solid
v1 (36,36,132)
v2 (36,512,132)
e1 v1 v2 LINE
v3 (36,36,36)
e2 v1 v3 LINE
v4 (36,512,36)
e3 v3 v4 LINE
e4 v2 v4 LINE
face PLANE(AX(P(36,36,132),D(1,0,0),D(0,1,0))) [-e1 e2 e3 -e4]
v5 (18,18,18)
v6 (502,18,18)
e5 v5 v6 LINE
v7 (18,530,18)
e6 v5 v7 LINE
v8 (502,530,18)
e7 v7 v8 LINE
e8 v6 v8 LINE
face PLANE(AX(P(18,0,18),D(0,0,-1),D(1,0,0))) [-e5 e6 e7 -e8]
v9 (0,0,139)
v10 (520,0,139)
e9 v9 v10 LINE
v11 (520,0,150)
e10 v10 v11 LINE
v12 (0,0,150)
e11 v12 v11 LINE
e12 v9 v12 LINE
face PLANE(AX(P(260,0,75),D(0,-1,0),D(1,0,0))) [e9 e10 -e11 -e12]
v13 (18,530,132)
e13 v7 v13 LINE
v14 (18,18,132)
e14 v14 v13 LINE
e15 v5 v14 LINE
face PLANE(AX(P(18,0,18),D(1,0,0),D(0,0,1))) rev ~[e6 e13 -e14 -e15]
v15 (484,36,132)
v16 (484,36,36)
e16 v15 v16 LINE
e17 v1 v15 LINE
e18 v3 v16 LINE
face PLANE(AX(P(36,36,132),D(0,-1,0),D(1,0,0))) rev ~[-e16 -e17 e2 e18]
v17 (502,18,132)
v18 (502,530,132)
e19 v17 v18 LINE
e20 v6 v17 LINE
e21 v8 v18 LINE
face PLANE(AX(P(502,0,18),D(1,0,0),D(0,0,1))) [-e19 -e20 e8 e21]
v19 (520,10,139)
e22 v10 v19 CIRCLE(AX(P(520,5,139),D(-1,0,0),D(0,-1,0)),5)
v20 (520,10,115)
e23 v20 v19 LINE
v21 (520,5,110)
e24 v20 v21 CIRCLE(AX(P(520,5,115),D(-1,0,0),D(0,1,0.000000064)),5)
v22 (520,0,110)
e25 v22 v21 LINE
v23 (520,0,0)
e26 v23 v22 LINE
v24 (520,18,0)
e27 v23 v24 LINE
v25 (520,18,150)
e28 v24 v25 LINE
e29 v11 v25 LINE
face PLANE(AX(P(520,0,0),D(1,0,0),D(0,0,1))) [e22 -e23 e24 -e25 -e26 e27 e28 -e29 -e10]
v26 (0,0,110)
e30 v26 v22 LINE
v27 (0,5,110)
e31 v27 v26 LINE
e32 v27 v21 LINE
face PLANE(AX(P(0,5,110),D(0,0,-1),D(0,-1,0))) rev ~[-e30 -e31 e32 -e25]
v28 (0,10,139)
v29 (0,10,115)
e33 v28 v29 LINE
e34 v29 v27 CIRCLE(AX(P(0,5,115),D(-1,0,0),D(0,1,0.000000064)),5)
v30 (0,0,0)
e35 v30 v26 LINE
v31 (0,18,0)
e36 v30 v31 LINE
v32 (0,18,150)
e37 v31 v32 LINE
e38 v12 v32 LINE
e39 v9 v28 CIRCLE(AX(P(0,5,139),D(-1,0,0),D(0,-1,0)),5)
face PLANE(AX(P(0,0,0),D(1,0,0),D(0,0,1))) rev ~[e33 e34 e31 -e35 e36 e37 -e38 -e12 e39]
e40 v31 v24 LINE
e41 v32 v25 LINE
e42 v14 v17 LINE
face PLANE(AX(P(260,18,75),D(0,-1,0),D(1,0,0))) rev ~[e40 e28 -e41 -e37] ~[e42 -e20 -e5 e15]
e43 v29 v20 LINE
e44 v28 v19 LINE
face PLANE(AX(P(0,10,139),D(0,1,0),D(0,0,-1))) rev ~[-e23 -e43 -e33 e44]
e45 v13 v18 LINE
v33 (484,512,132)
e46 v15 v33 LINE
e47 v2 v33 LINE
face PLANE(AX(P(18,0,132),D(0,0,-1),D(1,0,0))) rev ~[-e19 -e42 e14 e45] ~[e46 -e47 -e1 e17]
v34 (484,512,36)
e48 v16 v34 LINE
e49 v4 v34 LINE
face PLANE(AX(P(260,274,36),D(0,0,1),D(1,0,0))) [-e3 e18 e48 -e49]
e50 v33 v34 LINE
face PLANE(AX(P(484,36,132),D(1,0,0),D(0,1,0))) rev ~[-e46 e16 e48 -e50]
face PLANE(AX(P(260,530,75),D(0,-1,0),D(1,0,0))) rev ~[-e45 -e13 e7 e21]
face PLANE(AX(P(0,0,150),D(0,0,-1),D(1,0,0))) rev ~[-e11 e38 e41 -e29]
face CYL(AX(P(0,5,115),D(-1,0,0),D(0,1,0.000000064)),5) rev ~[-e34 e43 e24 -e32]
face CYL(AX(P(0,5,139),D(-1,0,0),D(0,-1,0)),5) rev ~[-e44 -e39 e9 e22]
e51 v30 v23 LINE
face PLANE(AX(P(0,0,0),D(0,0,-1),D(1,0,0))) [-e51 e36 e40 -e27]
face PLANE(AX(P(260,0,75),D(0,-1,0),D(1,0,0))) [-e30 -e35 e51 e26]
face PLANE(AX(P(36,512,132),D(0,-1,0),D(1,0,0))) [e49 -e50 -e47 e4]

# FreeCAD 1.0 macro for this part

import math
import FreeCAD as App
import Part
import Sketcher
from FreeCAD import Vector
Q = App.Units.Quantity

doc = App.newDocument("Part")
body = doc.addObject("PartDesign::Body", "Body")

# Sketch on XZ plane
sketch1 = doc.addObject("Sketcher::SketchObject", "Sketch")
body.addObject(sketch1)
sketch1.AttachmentSupport = (doc.XZ_Plane, [""])
sketch1.MapMode = "FlatFace"
sketch1.addGeometry(Part.LineSegment(Vector(0, 150, 0), Vector(0, 0, 0)), False)
sketch1.addGeometry(Part.LineSegment(Vector(0, 0, 0), Vector(520, 0, 0)), False)
sketch1.addGeometry(Part.LineSegment(Vector(520, 0, 0), Vector(520, 150, 0)), False)
sketch1.addGeometry(Part.LineSegment(Vector(520, 150, 0), Vector(0, 150, 0)), False)
sketch1.addGeometry(Part.LineSegment(Vector(502, 18, 0), Vector(18, 18, 0)), False)
sketch1.addGeometry(Part.LineSegment(Vector(18, 18, 0), Vector(18, 132, 0)), False)
sketch1.addGeometry(Part.LineSegment(Vector(18, 132, 0), Vector(502, 132, 0)), False)
sketch1.addGeometry(Part.LineSegment(Vector(502, 132, 0), Vector(502, 18, 0)), False)
sketch1.addConstraint(Sketcher.Constraint("Coincident", 0, 2, 1, 1))
sketch1.addConstraint(Sketcher.Constraint("Coincident", 1, 2, 2, 1))
sketch1.addConstraint(Sketcher.Constraint("Coincident", 2, 2, 3, 1))
sketch1.addConstraint(Sketcher.Constraint("Coincident", 3, 2, 0, 1))
sketch1.addConstraint(Sketcher.Constraint("Coincident", 4, 2, 5, 1))
sketch1.addConstraint(Sketcher.Constraint("Coincident", 5, 2, 6, 1))
sketch1.addConstraint(Sketcher.Constraint("Coincident", 6, 2, 7, 1))
sketch1.addConstraint(Sketcher.Constraint("Coincident", 7, 2, 4, 1))
sketch1.addConstraint(Sketcher.Constraint("Vertical", 0))
sketch1.addConstraint(Sketcher.Constraint("Horizontal", 1))
sketch1.addConstraint(Sketcher.Constraint("Vertical", 2))
sketch1.addConstraint(Sketcher.Constraint("Horizontal", 3))
sketch1.addConstraint(Sketcher.Constraint("Horizontal", 4))
sketch1.addConstraint(Sketcher.Constraint("Vertical", 5))
sketch1.addConstraint(Sketcher.Constraint("Horizontal", 6))
sketch1.addConstraint(Sketcher.Constraint("Vertical", 7))
sketch1.addConstraint(Sketcher.Constraint("Coincident", 0, 2, -1, 1))
sketch1.addConstraint(Sketcher.Constraint("DistanceX", 1, 1, 1, 2, Q("520 mm")))
sketch1.addConstraint(Sketcher.Constraint("DistanceX", 4, 2, 4, 1, Q("484 mm")))
sketch1.addConstraint(Sketcher.Constraint("DistanceY", 0, 2, 0, 1, Q("150 mm")))
sketch1.addConstraint(Sketcher.Constraint("DistanceY", 5, 1, 5, 2, Q("114 mm")))
sketch1.addConstraint(Sketcher.Constraint("DistanceX", -1, 1, 4, 2, Q("18 mm")))
sketch1.addConstraint(Sketcher.Constraint("DistanceY", -1, 1, 4, 2, Q("18 mm")))
pad1 = doc.addObject("PartDesign::Pad", "Pad")
body.addObject(pad1)
pad1.Profile = sketch1
pad1.Length = 18
pad1.Reversed = True

# Sketch on XZ plane
sketch2 = doc.addObject("Sketcher::SketchObject", "Sketch001")
body.addObject(sketch2)
sketch2.AttachmentSupport = (doc.XZ_Plane, [""])
sketch2.MapMode = "FlatFace"
sketch2.addGeometry(Part.LineSegment(Vector(18, 132, 0), Vector(18, 18, 0)), False)
sketch2.addGeometry(Part.LineSegment(Vector(18, 18, 0), Vector(502, 18, 0)), False)
sketch2.addGeometry(Part.LineSegment(Vector(502, 18, 0), Vector(502, 132, 0)), False)
sketch2.addGeometry(Part.LineSegment(Vector(502, 132, 0), Vector(18, 132, 0)), False)
sketch2.addConstraint(Sketcher.Constraint("Coincident", 0, 2, 1, 1))
sketch2.addConstraint(Sketcher.Constraint("Coincident", 1, 2, 2, 1))
sketch2.addConstraint(Sketcher.Constraint("Coincident", 2, 2, 3, 1))
sketch2.addConstraint(Sketcher.Constraint("Coincident", 3, 2, 0, 1))
sketch2.addConstraint(Sketcher.Constraint("Vertical", 0))
sketch2.addConstraint(Sketcher.Constraint("Horizontal", 1))
sketch2.addConstraint(Sketcher.Constraint("Vertical", 2))
sketch2.addConstraint(Sketcher.Constraint("Horizontal", 3))
sketch2.addConstraint(Sketcher.Constraint("DistanceX", 1, 1, 1, 2, Q("484 mm")))
sketch2.addConstraint(Sketcher.Constraint("DistanceY", 0, 2, 0, 1, Q("114 mm")))
sketch2.addConstraint(Sketcher.Constraint("DistanceX", -1, 1, 0, 2, Q("18 mm")))
sketch2.addConstraint(Sketcher.Constraint("DistanceY", -1, 1, 0, 2, Q("18 mm")))
pad2 = doc.addObject("PartDesign::Pad", "Pad001")
body.addObject(pad2)
pad2.Profile = sketch2
pad2.Length = 530
pad2.Reversed = True

# Sketch on XY plane
sketch3 = doc.addObject("Sketcher::SketchObject", "Sketch002")
body.addObject(sketch3)
sketch3.AttachmentSupport = (doc.XY_Plane, [""])
sketch3.MapMode = "FlatFace"
sketch3.AttachmentOffset = App.Placement(Vector(0, 0, 132), App.Rotation())
sketch3.addGeometry(Part.LineSegment(Vector(36, 512, 0), Vector(36, 36, 0)), False)
sketch3.addGeometry(Part.LineSegment(Vector(36, 36, 0), Vector(484, 36, 0)), False)
sketch3.addGeometry(Part.LineSegment(Vector(484, 36, 0), Vector(484, 512, 0)), False)
sketch3.addGeometry(Part.LineSegment(Vector(484, 512, 0), Vector(36, 512, 0)), False)
sketch3.addConstraint(Sketcher.Constraint("Coincident", 0, 2, 1, 1))
sketch3.addConstraint(Sketcher.Constraint("Coincident", 1, 2, 2, 1))
sketch3.addConstraint(Sketcher.Constraint("Coincident", 2, 2, 3, 1))
sketch3.addConstraint(Sketcher.Constraint("Coincident", 3, 2, 0, 1))
sketch3.addConstraint(Sketcher.Constraint("Vertical", 0))
sketch3.addConstraint(Sketcher.Constraint("Horizontal", 1))
sketch3.addConstraint(Sketcher.Constraint("Vertical", 2))
sketch3.addConstraint(Sketcher.Constraint("Horizontal", 3))
sketch3.addConstraint(Sketcher.Constraint("DistanceX", 1, 1, 1, 2, Q("448 mm")))
sketch3.addConstraint(Sketcher.Constraint("DistanceY", 0, 2, 0, 1, Q("476 mm")))
sketch3.addConstraint(Sketcher.Constraint("DistanceX", -1, 1, 0, 2, Q("36 mm")))
sketch3.addConstraint(Sketcher.Constraint("DistanceY", -1, 1, 0, 2, Q("36 mm")))
pocket1 = doc.addObject("PartDesign::Pocket", "Pocket")
body.addObject(pocket1)
pocket1.Profile = sketch3
pocket1.Length = 96

# Sketch on YZ plane
sketch4 = doc.addObject("Sketcher::SketchObject", "Sketch003")
body.addObject(sketch4)
sketch4.AttachmentSupport = (doc.YZ_Plane, [""])
sketch4.MapMode = "FlatFace"
sketch4.addGeometry(Part.LineSegment(Vector(5, 110, 0), Vector(0, 110, 0)), False)
sketch4.addGeometry(Part.LineSegment(Vector(0, 110, 0), Vector(0, 139, 0)), False)
sketch4.addGeometry(Part.ArcOfCircle(Part.Circle(Vector(5, 139, 0), Vector(0, 0, 1), 5), math.radians(0), math.radians(180)), False)
sketch4.addGeometry(Part.LineSegment(Vector(10, 139, 0), Vector(10, 115, 0)), False)
sketch4.addGeometry(Part.ArcOfCircle(Part.Circle(Vector(5, 115, 0), Vector(0, 0, 1), 5), math.radians(-90.000004), math.radians(0.000004)), False)
sketch4.addConstraint(Sketcher.Constraint("Coincident", 0, 2, 1, 1))
sketch4.addConstraint(Sketcher.Constraint("Tangent", 1, 2, 2, 2))
sketch4.addConstraint(Sketcher.Constraint("Tangent", 2, 1, 3, 1))
sketch4.addConstraint(Sketcher.Constraint("Tangent", 3, 2, 4, 2))
sketch4.addConstraint(Sketcher.Constraint("Tangent", 4, 1, 0, 1))
sketch4.addConstraint(Sketcher.Constraint("Horizontal", 0))
sketch4.addConstraint(Sketcher.Constraint("Vertical", 1))
sketch4.addConstraint(Sketcher.Constraint("Vertical", 3))
sketch4.addConstraint(Sketcher.Constraint("Equal", 2, 4))
sketch4.addConstraint(Sketcher.Constraint("PointOnObject", 0, 2, -2))
sketch4.addConstraint(Sketcher.Constraint("Radius", 2, Q("5 mm")))
sketch4.addConstraint(Sketcher.Constraint("DistanceY", 1, 1, 1, 2, Q("29 mm")))
sketch4.addConstraint(Sketcher.Constraint("DistanceY", -1, 1, 2, 3, Q("139 mm")))
pocket2 = doc.addObject("PartDesign::Pocket", "Pocket001")
body.addObject(pocket2)
pocket2.Profile = sketch4
pocket2.Length = 539
pocket2.Reversed = True

doc.recompute()
